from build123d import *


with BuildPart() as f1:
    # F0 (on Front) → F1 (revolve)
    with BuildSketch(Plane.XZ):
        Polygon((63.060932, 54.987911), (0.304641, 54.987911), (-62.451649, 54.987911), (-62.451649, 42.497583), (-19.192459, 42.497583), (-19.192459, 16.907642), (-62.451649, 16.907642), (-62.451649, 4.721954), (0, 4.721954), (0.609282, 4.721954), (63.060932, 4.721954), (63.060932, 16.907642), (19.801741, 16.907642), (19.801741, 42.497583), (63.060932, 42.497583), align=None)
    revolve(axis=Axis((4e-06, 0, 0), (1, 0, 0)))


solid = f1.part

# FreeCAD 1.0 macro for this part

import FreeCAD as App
import Part
import Sketcher
from FreeCAD import Vector
Q = App.Units.Quantity


def add_polygon(sketch, points):
    """Adds a closed chain of lines whose ends are joined by coincident constraints."""
    first, n = sketch.GeometryCount, len(points)
    for a, b in zip(points, points[1:] + points[:1]):
        sketch.addGeometry(Part.LineSegment(App.Vector(*a, 0), App.Vector(*b, 0)), False)
    for i in range(n):
        sketch.addConstraint(Sketcher.Constraint("Coincident", first + i, 2, first + (i + 1) % n, 1))

doc = App.newDocument("Part")
body = doc.addObject("PartDesign::Body", "Body")

# Sketch on XZ plane
sketch1 = body.newObject("Sketcher::SketchObject", "Sketch")
sketch1.AttachmentSupport = (doc.getObject("XZ_Plane"), [""])
sketch1.MapMode = "FlatFace"
add_polygon(sketch1, [(63.060932, 54.987911), (-62.451649, 54.987911), (-62.451649, 42.497583), (-19.192459, 42.497583), (-19.192459, 16.907642), (-62.451649, 16.907642), (-62.451649, 4.721954), (63.060932, 4.721954), (63.060932, 16.907642), (19.801741, 16.907642), (19.801741, 42.497583), (63.060932, 42.497583)])  # lines 0-11
sketch1.addConstraint([
    Sketcher.Constraint("Horizontal", 0),
    Sketcher.Constraint("Vertical", 1),
    Sketcher.Constraint("Horizontal", 2),
    Sketcher.Constraint("Vertical", 3),
    Sketcher.Constraint("Horizontal", 4),
    Sketcher.Constraint("Vertical", 5),
    Sketcher.Constraint("Horizontal", 6),
    Sketcher.Constraint("Vertical", 7),
    Sketcher.Constraint("Horizontal", 8),
    Sketcher.Constraint("Vertical", 9),
    Sketcher.Constraint("Horizontal", 10),
    Sketcher.Constraint("Vertical", 11),
    Sketcher.Constraint("Horizontal", 4, 2, 7, 2),
    Sketcher.Constraint("Horizontal", 2, 2, 9, 2),
    Sketcher.Constraint("Vertical", 1, 2, 4, 2),
    Sketcher.Constraint("Vertical", 7, 2, 10, 2),
    Sketcher.Constraint("Equal", 4, 8),
    Sketcher.Constraint("DistanceX", 0, 2, 0, 1, Q("125.512581 mm")),
    Sketcher.Constraint("DistanceX", 2, 1, 2, 2, Q("43.25919 mm")),
    Sketcher.Constraint("DistanceY", 3, 2, 3, 1, Q("25.589941 mm")),
    Sketcher.Constraint("DistanceY", 1, 2, 1, 1, Q("12.490328 mm")),
    Sketcher.Constraint("DistanceY", 5, 2, 5, 1, Q("12.185688 mm")),
    Sketcher.Constraint("DistanceX", 0, 2, -1, 1, Q("62.451649 mm")),
    Sketcher.Constraint("DistanceY", -1, 1, 0, 2, Q("54.987911 mm")),
])
revolution = body.newObject("PartDesign::Revolution", "Revolution")
revolution.Profile = sketch1
revolution.ReferenceAxis = (sketch1, ["H_Axis"])
revolution.Angle = 360

doc.recompute()
